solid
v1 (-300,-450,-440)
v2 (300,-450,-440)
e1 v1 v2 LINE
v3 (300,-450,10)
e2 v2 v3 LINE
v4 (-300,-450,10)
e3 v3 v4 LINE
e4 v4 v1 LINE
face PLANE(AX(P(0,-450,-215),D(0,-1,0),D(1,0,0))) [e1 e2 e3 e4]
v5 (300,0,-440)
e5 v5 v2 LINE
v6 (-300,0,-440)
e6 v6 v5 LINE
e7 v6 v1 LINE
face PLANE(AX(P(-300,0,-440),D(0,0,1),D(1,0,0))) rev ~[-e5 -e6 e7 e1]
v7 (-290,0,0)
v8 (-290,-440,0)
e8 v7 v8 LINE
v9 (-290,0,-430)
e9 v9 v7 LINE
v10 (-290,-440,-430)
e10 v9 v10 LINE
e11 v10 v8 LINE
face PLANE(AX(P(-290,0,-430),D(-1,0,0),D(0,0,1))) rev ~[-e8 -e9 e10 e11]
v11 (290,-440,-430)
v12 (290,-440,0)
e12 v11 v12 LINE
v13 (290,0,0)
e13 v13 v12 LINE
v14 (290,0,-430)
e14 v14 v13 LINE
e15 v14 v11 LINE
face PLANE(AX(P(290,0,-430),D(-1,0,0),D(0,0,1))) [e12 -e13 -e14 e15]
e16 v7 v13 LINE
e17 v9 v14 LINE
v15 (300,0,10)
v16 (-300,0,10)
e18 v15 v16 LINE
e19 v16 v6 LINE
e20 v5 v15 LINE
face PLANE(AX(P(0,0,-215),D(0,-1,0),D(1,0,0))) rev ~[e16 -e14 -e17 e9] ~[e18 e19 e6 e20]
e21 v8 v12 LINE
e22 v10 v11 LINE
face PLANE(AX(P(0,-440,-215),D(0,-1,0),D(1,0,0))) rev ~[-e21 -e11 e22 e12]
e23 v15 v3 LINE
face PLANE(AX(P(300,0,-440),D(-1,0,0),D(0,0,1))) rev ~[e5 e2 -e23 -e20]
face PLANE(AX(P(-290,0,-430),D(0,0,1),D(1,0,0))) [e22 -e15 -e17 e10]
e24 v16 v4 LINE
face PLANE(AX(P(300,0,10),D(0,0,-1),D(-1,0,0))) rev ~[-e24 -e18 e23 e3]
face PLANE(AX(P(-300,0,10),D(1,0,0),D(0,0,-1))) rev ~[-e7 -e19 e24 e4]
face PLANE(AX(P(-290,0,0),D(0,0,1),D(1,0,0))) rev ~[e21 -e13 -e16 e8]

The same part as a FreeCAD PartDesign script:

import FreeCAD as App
import Part
import Sketcher

doc = App.newDocument("Part")
body = doc.addObject("PartDesign::Body", "Body")

sketch1 = body.newObject("Sketcher::SketchObject", "Sketch")
sketch1.AttachmentSupport = (doc.getObject("XZ_Plane"), [""])
sketch1.MapMode = "FlatFace"
sketch1.addGeometry([
    Part.LineSegment(App.Vector(-300, 10, 0), App.Vector(-300, -440, 0)),
    Part.LineSegment(App.Vector(-300, -440, 0), App.Vector(300, -440, 0)),
    Part.LineSegment(App.Vector(300, -440, 0), App.Vector(300, 10, 0)),
    Part.LineSegment(App.Vector(300, 10, 0), App.Vector(-300, 10, 0)),
], False)
sketch1.addConstraint([
    Sketcher.Constraint("Coincident", 0, 2, 1, 1),
    Sketcher.Constraint("Coincident", 1, 2, 2, 1),
    Sketcher.Constraint("Coincident", 2, 2, 3, 1),
    Sketcher.Constraint("Coincident", 3, 2, 0, 1),
    Sketcher.Constraint("Vertical", 0),
    Sketcher.Constraint("Horizontal", 1),
    Sketcher.Constraint("Vertical", 2),
    Sketcher.Constraint("Horizontal", 3),
    Sketcher.Constraint("DistanceX", 1, 1, 1, 2, 600.0),
    Sketcher.Constraint("DistanceY", 0, 2, 0, 1, 450.0),
    Sketcher.Constraint("DistanceX", 0, 2, -1, 1, 300.0),
    Sketcher.Constraint("DistanceY", 0, 2, -1, 1, 440.0),
])
pad1 = body.newObject("PartDesign::Pad", "Pad")
pad1.Profile = sketch1
pad1.Length = 450

sketch2 = body.newObject("Sketcher::SketchObject", "Sketch001")
sketch2.AttachmentSupport = (doc.getObject("XZ_Plane"), [""])
sketch2.MapMode = "FlatFace"
sketch2.addGeometry([
    Part.LineSegment(App.Vector(-290, 0, 0), App.Vector(-290, -430, 0)),
    Part.LineSegment(App.Vector(-290, -430, 0), App.Vector(290, -430, 0)),
    Part.LineSegment(App.Vector(290, -430, 0), App.Vector(290, 0, 0)),
    Part.LineSegment(App.Vector(290, 0, 0), App.Vector(-290, 0, 0)),
], False)
sketch2.addConstraint([
    Sketcher.Constraint("Coincident", 0, 2, 1, 1),
    Sketcher.Constraint("Coincident", 1, 2, 2, 1),
    Sketcher.Constraint("Coincident", 2, 2, 3, 1),
    Sketcher.Constraint("Coincident", 3, 2, 0, 1),
    Sketcher.Constraint("Vertical", 0),
    Sketcher.Constraint("Horizontal", 1),
    Sketcher.Constraint("Vertical", 2),
    Sketcher.Constraint("Horizontal", 3),
    Sketcher.Constraint("Symmetric", 2, 2, 3, 2, -1, 1),
    Sketcher.Constraint("DistanceX", 1, 1, 1, 2, 580.0),
    Sketcher.Constraint("DistanceY", 0, 2, 0, 1, 430.0),
])
pocket1 = body.newObject("PartDesign::Pocket", "Pocket")
pocket1.Profile = sketch2
pocket1.Length = 440
pocket1.Reversed = True

doc.recompute()
